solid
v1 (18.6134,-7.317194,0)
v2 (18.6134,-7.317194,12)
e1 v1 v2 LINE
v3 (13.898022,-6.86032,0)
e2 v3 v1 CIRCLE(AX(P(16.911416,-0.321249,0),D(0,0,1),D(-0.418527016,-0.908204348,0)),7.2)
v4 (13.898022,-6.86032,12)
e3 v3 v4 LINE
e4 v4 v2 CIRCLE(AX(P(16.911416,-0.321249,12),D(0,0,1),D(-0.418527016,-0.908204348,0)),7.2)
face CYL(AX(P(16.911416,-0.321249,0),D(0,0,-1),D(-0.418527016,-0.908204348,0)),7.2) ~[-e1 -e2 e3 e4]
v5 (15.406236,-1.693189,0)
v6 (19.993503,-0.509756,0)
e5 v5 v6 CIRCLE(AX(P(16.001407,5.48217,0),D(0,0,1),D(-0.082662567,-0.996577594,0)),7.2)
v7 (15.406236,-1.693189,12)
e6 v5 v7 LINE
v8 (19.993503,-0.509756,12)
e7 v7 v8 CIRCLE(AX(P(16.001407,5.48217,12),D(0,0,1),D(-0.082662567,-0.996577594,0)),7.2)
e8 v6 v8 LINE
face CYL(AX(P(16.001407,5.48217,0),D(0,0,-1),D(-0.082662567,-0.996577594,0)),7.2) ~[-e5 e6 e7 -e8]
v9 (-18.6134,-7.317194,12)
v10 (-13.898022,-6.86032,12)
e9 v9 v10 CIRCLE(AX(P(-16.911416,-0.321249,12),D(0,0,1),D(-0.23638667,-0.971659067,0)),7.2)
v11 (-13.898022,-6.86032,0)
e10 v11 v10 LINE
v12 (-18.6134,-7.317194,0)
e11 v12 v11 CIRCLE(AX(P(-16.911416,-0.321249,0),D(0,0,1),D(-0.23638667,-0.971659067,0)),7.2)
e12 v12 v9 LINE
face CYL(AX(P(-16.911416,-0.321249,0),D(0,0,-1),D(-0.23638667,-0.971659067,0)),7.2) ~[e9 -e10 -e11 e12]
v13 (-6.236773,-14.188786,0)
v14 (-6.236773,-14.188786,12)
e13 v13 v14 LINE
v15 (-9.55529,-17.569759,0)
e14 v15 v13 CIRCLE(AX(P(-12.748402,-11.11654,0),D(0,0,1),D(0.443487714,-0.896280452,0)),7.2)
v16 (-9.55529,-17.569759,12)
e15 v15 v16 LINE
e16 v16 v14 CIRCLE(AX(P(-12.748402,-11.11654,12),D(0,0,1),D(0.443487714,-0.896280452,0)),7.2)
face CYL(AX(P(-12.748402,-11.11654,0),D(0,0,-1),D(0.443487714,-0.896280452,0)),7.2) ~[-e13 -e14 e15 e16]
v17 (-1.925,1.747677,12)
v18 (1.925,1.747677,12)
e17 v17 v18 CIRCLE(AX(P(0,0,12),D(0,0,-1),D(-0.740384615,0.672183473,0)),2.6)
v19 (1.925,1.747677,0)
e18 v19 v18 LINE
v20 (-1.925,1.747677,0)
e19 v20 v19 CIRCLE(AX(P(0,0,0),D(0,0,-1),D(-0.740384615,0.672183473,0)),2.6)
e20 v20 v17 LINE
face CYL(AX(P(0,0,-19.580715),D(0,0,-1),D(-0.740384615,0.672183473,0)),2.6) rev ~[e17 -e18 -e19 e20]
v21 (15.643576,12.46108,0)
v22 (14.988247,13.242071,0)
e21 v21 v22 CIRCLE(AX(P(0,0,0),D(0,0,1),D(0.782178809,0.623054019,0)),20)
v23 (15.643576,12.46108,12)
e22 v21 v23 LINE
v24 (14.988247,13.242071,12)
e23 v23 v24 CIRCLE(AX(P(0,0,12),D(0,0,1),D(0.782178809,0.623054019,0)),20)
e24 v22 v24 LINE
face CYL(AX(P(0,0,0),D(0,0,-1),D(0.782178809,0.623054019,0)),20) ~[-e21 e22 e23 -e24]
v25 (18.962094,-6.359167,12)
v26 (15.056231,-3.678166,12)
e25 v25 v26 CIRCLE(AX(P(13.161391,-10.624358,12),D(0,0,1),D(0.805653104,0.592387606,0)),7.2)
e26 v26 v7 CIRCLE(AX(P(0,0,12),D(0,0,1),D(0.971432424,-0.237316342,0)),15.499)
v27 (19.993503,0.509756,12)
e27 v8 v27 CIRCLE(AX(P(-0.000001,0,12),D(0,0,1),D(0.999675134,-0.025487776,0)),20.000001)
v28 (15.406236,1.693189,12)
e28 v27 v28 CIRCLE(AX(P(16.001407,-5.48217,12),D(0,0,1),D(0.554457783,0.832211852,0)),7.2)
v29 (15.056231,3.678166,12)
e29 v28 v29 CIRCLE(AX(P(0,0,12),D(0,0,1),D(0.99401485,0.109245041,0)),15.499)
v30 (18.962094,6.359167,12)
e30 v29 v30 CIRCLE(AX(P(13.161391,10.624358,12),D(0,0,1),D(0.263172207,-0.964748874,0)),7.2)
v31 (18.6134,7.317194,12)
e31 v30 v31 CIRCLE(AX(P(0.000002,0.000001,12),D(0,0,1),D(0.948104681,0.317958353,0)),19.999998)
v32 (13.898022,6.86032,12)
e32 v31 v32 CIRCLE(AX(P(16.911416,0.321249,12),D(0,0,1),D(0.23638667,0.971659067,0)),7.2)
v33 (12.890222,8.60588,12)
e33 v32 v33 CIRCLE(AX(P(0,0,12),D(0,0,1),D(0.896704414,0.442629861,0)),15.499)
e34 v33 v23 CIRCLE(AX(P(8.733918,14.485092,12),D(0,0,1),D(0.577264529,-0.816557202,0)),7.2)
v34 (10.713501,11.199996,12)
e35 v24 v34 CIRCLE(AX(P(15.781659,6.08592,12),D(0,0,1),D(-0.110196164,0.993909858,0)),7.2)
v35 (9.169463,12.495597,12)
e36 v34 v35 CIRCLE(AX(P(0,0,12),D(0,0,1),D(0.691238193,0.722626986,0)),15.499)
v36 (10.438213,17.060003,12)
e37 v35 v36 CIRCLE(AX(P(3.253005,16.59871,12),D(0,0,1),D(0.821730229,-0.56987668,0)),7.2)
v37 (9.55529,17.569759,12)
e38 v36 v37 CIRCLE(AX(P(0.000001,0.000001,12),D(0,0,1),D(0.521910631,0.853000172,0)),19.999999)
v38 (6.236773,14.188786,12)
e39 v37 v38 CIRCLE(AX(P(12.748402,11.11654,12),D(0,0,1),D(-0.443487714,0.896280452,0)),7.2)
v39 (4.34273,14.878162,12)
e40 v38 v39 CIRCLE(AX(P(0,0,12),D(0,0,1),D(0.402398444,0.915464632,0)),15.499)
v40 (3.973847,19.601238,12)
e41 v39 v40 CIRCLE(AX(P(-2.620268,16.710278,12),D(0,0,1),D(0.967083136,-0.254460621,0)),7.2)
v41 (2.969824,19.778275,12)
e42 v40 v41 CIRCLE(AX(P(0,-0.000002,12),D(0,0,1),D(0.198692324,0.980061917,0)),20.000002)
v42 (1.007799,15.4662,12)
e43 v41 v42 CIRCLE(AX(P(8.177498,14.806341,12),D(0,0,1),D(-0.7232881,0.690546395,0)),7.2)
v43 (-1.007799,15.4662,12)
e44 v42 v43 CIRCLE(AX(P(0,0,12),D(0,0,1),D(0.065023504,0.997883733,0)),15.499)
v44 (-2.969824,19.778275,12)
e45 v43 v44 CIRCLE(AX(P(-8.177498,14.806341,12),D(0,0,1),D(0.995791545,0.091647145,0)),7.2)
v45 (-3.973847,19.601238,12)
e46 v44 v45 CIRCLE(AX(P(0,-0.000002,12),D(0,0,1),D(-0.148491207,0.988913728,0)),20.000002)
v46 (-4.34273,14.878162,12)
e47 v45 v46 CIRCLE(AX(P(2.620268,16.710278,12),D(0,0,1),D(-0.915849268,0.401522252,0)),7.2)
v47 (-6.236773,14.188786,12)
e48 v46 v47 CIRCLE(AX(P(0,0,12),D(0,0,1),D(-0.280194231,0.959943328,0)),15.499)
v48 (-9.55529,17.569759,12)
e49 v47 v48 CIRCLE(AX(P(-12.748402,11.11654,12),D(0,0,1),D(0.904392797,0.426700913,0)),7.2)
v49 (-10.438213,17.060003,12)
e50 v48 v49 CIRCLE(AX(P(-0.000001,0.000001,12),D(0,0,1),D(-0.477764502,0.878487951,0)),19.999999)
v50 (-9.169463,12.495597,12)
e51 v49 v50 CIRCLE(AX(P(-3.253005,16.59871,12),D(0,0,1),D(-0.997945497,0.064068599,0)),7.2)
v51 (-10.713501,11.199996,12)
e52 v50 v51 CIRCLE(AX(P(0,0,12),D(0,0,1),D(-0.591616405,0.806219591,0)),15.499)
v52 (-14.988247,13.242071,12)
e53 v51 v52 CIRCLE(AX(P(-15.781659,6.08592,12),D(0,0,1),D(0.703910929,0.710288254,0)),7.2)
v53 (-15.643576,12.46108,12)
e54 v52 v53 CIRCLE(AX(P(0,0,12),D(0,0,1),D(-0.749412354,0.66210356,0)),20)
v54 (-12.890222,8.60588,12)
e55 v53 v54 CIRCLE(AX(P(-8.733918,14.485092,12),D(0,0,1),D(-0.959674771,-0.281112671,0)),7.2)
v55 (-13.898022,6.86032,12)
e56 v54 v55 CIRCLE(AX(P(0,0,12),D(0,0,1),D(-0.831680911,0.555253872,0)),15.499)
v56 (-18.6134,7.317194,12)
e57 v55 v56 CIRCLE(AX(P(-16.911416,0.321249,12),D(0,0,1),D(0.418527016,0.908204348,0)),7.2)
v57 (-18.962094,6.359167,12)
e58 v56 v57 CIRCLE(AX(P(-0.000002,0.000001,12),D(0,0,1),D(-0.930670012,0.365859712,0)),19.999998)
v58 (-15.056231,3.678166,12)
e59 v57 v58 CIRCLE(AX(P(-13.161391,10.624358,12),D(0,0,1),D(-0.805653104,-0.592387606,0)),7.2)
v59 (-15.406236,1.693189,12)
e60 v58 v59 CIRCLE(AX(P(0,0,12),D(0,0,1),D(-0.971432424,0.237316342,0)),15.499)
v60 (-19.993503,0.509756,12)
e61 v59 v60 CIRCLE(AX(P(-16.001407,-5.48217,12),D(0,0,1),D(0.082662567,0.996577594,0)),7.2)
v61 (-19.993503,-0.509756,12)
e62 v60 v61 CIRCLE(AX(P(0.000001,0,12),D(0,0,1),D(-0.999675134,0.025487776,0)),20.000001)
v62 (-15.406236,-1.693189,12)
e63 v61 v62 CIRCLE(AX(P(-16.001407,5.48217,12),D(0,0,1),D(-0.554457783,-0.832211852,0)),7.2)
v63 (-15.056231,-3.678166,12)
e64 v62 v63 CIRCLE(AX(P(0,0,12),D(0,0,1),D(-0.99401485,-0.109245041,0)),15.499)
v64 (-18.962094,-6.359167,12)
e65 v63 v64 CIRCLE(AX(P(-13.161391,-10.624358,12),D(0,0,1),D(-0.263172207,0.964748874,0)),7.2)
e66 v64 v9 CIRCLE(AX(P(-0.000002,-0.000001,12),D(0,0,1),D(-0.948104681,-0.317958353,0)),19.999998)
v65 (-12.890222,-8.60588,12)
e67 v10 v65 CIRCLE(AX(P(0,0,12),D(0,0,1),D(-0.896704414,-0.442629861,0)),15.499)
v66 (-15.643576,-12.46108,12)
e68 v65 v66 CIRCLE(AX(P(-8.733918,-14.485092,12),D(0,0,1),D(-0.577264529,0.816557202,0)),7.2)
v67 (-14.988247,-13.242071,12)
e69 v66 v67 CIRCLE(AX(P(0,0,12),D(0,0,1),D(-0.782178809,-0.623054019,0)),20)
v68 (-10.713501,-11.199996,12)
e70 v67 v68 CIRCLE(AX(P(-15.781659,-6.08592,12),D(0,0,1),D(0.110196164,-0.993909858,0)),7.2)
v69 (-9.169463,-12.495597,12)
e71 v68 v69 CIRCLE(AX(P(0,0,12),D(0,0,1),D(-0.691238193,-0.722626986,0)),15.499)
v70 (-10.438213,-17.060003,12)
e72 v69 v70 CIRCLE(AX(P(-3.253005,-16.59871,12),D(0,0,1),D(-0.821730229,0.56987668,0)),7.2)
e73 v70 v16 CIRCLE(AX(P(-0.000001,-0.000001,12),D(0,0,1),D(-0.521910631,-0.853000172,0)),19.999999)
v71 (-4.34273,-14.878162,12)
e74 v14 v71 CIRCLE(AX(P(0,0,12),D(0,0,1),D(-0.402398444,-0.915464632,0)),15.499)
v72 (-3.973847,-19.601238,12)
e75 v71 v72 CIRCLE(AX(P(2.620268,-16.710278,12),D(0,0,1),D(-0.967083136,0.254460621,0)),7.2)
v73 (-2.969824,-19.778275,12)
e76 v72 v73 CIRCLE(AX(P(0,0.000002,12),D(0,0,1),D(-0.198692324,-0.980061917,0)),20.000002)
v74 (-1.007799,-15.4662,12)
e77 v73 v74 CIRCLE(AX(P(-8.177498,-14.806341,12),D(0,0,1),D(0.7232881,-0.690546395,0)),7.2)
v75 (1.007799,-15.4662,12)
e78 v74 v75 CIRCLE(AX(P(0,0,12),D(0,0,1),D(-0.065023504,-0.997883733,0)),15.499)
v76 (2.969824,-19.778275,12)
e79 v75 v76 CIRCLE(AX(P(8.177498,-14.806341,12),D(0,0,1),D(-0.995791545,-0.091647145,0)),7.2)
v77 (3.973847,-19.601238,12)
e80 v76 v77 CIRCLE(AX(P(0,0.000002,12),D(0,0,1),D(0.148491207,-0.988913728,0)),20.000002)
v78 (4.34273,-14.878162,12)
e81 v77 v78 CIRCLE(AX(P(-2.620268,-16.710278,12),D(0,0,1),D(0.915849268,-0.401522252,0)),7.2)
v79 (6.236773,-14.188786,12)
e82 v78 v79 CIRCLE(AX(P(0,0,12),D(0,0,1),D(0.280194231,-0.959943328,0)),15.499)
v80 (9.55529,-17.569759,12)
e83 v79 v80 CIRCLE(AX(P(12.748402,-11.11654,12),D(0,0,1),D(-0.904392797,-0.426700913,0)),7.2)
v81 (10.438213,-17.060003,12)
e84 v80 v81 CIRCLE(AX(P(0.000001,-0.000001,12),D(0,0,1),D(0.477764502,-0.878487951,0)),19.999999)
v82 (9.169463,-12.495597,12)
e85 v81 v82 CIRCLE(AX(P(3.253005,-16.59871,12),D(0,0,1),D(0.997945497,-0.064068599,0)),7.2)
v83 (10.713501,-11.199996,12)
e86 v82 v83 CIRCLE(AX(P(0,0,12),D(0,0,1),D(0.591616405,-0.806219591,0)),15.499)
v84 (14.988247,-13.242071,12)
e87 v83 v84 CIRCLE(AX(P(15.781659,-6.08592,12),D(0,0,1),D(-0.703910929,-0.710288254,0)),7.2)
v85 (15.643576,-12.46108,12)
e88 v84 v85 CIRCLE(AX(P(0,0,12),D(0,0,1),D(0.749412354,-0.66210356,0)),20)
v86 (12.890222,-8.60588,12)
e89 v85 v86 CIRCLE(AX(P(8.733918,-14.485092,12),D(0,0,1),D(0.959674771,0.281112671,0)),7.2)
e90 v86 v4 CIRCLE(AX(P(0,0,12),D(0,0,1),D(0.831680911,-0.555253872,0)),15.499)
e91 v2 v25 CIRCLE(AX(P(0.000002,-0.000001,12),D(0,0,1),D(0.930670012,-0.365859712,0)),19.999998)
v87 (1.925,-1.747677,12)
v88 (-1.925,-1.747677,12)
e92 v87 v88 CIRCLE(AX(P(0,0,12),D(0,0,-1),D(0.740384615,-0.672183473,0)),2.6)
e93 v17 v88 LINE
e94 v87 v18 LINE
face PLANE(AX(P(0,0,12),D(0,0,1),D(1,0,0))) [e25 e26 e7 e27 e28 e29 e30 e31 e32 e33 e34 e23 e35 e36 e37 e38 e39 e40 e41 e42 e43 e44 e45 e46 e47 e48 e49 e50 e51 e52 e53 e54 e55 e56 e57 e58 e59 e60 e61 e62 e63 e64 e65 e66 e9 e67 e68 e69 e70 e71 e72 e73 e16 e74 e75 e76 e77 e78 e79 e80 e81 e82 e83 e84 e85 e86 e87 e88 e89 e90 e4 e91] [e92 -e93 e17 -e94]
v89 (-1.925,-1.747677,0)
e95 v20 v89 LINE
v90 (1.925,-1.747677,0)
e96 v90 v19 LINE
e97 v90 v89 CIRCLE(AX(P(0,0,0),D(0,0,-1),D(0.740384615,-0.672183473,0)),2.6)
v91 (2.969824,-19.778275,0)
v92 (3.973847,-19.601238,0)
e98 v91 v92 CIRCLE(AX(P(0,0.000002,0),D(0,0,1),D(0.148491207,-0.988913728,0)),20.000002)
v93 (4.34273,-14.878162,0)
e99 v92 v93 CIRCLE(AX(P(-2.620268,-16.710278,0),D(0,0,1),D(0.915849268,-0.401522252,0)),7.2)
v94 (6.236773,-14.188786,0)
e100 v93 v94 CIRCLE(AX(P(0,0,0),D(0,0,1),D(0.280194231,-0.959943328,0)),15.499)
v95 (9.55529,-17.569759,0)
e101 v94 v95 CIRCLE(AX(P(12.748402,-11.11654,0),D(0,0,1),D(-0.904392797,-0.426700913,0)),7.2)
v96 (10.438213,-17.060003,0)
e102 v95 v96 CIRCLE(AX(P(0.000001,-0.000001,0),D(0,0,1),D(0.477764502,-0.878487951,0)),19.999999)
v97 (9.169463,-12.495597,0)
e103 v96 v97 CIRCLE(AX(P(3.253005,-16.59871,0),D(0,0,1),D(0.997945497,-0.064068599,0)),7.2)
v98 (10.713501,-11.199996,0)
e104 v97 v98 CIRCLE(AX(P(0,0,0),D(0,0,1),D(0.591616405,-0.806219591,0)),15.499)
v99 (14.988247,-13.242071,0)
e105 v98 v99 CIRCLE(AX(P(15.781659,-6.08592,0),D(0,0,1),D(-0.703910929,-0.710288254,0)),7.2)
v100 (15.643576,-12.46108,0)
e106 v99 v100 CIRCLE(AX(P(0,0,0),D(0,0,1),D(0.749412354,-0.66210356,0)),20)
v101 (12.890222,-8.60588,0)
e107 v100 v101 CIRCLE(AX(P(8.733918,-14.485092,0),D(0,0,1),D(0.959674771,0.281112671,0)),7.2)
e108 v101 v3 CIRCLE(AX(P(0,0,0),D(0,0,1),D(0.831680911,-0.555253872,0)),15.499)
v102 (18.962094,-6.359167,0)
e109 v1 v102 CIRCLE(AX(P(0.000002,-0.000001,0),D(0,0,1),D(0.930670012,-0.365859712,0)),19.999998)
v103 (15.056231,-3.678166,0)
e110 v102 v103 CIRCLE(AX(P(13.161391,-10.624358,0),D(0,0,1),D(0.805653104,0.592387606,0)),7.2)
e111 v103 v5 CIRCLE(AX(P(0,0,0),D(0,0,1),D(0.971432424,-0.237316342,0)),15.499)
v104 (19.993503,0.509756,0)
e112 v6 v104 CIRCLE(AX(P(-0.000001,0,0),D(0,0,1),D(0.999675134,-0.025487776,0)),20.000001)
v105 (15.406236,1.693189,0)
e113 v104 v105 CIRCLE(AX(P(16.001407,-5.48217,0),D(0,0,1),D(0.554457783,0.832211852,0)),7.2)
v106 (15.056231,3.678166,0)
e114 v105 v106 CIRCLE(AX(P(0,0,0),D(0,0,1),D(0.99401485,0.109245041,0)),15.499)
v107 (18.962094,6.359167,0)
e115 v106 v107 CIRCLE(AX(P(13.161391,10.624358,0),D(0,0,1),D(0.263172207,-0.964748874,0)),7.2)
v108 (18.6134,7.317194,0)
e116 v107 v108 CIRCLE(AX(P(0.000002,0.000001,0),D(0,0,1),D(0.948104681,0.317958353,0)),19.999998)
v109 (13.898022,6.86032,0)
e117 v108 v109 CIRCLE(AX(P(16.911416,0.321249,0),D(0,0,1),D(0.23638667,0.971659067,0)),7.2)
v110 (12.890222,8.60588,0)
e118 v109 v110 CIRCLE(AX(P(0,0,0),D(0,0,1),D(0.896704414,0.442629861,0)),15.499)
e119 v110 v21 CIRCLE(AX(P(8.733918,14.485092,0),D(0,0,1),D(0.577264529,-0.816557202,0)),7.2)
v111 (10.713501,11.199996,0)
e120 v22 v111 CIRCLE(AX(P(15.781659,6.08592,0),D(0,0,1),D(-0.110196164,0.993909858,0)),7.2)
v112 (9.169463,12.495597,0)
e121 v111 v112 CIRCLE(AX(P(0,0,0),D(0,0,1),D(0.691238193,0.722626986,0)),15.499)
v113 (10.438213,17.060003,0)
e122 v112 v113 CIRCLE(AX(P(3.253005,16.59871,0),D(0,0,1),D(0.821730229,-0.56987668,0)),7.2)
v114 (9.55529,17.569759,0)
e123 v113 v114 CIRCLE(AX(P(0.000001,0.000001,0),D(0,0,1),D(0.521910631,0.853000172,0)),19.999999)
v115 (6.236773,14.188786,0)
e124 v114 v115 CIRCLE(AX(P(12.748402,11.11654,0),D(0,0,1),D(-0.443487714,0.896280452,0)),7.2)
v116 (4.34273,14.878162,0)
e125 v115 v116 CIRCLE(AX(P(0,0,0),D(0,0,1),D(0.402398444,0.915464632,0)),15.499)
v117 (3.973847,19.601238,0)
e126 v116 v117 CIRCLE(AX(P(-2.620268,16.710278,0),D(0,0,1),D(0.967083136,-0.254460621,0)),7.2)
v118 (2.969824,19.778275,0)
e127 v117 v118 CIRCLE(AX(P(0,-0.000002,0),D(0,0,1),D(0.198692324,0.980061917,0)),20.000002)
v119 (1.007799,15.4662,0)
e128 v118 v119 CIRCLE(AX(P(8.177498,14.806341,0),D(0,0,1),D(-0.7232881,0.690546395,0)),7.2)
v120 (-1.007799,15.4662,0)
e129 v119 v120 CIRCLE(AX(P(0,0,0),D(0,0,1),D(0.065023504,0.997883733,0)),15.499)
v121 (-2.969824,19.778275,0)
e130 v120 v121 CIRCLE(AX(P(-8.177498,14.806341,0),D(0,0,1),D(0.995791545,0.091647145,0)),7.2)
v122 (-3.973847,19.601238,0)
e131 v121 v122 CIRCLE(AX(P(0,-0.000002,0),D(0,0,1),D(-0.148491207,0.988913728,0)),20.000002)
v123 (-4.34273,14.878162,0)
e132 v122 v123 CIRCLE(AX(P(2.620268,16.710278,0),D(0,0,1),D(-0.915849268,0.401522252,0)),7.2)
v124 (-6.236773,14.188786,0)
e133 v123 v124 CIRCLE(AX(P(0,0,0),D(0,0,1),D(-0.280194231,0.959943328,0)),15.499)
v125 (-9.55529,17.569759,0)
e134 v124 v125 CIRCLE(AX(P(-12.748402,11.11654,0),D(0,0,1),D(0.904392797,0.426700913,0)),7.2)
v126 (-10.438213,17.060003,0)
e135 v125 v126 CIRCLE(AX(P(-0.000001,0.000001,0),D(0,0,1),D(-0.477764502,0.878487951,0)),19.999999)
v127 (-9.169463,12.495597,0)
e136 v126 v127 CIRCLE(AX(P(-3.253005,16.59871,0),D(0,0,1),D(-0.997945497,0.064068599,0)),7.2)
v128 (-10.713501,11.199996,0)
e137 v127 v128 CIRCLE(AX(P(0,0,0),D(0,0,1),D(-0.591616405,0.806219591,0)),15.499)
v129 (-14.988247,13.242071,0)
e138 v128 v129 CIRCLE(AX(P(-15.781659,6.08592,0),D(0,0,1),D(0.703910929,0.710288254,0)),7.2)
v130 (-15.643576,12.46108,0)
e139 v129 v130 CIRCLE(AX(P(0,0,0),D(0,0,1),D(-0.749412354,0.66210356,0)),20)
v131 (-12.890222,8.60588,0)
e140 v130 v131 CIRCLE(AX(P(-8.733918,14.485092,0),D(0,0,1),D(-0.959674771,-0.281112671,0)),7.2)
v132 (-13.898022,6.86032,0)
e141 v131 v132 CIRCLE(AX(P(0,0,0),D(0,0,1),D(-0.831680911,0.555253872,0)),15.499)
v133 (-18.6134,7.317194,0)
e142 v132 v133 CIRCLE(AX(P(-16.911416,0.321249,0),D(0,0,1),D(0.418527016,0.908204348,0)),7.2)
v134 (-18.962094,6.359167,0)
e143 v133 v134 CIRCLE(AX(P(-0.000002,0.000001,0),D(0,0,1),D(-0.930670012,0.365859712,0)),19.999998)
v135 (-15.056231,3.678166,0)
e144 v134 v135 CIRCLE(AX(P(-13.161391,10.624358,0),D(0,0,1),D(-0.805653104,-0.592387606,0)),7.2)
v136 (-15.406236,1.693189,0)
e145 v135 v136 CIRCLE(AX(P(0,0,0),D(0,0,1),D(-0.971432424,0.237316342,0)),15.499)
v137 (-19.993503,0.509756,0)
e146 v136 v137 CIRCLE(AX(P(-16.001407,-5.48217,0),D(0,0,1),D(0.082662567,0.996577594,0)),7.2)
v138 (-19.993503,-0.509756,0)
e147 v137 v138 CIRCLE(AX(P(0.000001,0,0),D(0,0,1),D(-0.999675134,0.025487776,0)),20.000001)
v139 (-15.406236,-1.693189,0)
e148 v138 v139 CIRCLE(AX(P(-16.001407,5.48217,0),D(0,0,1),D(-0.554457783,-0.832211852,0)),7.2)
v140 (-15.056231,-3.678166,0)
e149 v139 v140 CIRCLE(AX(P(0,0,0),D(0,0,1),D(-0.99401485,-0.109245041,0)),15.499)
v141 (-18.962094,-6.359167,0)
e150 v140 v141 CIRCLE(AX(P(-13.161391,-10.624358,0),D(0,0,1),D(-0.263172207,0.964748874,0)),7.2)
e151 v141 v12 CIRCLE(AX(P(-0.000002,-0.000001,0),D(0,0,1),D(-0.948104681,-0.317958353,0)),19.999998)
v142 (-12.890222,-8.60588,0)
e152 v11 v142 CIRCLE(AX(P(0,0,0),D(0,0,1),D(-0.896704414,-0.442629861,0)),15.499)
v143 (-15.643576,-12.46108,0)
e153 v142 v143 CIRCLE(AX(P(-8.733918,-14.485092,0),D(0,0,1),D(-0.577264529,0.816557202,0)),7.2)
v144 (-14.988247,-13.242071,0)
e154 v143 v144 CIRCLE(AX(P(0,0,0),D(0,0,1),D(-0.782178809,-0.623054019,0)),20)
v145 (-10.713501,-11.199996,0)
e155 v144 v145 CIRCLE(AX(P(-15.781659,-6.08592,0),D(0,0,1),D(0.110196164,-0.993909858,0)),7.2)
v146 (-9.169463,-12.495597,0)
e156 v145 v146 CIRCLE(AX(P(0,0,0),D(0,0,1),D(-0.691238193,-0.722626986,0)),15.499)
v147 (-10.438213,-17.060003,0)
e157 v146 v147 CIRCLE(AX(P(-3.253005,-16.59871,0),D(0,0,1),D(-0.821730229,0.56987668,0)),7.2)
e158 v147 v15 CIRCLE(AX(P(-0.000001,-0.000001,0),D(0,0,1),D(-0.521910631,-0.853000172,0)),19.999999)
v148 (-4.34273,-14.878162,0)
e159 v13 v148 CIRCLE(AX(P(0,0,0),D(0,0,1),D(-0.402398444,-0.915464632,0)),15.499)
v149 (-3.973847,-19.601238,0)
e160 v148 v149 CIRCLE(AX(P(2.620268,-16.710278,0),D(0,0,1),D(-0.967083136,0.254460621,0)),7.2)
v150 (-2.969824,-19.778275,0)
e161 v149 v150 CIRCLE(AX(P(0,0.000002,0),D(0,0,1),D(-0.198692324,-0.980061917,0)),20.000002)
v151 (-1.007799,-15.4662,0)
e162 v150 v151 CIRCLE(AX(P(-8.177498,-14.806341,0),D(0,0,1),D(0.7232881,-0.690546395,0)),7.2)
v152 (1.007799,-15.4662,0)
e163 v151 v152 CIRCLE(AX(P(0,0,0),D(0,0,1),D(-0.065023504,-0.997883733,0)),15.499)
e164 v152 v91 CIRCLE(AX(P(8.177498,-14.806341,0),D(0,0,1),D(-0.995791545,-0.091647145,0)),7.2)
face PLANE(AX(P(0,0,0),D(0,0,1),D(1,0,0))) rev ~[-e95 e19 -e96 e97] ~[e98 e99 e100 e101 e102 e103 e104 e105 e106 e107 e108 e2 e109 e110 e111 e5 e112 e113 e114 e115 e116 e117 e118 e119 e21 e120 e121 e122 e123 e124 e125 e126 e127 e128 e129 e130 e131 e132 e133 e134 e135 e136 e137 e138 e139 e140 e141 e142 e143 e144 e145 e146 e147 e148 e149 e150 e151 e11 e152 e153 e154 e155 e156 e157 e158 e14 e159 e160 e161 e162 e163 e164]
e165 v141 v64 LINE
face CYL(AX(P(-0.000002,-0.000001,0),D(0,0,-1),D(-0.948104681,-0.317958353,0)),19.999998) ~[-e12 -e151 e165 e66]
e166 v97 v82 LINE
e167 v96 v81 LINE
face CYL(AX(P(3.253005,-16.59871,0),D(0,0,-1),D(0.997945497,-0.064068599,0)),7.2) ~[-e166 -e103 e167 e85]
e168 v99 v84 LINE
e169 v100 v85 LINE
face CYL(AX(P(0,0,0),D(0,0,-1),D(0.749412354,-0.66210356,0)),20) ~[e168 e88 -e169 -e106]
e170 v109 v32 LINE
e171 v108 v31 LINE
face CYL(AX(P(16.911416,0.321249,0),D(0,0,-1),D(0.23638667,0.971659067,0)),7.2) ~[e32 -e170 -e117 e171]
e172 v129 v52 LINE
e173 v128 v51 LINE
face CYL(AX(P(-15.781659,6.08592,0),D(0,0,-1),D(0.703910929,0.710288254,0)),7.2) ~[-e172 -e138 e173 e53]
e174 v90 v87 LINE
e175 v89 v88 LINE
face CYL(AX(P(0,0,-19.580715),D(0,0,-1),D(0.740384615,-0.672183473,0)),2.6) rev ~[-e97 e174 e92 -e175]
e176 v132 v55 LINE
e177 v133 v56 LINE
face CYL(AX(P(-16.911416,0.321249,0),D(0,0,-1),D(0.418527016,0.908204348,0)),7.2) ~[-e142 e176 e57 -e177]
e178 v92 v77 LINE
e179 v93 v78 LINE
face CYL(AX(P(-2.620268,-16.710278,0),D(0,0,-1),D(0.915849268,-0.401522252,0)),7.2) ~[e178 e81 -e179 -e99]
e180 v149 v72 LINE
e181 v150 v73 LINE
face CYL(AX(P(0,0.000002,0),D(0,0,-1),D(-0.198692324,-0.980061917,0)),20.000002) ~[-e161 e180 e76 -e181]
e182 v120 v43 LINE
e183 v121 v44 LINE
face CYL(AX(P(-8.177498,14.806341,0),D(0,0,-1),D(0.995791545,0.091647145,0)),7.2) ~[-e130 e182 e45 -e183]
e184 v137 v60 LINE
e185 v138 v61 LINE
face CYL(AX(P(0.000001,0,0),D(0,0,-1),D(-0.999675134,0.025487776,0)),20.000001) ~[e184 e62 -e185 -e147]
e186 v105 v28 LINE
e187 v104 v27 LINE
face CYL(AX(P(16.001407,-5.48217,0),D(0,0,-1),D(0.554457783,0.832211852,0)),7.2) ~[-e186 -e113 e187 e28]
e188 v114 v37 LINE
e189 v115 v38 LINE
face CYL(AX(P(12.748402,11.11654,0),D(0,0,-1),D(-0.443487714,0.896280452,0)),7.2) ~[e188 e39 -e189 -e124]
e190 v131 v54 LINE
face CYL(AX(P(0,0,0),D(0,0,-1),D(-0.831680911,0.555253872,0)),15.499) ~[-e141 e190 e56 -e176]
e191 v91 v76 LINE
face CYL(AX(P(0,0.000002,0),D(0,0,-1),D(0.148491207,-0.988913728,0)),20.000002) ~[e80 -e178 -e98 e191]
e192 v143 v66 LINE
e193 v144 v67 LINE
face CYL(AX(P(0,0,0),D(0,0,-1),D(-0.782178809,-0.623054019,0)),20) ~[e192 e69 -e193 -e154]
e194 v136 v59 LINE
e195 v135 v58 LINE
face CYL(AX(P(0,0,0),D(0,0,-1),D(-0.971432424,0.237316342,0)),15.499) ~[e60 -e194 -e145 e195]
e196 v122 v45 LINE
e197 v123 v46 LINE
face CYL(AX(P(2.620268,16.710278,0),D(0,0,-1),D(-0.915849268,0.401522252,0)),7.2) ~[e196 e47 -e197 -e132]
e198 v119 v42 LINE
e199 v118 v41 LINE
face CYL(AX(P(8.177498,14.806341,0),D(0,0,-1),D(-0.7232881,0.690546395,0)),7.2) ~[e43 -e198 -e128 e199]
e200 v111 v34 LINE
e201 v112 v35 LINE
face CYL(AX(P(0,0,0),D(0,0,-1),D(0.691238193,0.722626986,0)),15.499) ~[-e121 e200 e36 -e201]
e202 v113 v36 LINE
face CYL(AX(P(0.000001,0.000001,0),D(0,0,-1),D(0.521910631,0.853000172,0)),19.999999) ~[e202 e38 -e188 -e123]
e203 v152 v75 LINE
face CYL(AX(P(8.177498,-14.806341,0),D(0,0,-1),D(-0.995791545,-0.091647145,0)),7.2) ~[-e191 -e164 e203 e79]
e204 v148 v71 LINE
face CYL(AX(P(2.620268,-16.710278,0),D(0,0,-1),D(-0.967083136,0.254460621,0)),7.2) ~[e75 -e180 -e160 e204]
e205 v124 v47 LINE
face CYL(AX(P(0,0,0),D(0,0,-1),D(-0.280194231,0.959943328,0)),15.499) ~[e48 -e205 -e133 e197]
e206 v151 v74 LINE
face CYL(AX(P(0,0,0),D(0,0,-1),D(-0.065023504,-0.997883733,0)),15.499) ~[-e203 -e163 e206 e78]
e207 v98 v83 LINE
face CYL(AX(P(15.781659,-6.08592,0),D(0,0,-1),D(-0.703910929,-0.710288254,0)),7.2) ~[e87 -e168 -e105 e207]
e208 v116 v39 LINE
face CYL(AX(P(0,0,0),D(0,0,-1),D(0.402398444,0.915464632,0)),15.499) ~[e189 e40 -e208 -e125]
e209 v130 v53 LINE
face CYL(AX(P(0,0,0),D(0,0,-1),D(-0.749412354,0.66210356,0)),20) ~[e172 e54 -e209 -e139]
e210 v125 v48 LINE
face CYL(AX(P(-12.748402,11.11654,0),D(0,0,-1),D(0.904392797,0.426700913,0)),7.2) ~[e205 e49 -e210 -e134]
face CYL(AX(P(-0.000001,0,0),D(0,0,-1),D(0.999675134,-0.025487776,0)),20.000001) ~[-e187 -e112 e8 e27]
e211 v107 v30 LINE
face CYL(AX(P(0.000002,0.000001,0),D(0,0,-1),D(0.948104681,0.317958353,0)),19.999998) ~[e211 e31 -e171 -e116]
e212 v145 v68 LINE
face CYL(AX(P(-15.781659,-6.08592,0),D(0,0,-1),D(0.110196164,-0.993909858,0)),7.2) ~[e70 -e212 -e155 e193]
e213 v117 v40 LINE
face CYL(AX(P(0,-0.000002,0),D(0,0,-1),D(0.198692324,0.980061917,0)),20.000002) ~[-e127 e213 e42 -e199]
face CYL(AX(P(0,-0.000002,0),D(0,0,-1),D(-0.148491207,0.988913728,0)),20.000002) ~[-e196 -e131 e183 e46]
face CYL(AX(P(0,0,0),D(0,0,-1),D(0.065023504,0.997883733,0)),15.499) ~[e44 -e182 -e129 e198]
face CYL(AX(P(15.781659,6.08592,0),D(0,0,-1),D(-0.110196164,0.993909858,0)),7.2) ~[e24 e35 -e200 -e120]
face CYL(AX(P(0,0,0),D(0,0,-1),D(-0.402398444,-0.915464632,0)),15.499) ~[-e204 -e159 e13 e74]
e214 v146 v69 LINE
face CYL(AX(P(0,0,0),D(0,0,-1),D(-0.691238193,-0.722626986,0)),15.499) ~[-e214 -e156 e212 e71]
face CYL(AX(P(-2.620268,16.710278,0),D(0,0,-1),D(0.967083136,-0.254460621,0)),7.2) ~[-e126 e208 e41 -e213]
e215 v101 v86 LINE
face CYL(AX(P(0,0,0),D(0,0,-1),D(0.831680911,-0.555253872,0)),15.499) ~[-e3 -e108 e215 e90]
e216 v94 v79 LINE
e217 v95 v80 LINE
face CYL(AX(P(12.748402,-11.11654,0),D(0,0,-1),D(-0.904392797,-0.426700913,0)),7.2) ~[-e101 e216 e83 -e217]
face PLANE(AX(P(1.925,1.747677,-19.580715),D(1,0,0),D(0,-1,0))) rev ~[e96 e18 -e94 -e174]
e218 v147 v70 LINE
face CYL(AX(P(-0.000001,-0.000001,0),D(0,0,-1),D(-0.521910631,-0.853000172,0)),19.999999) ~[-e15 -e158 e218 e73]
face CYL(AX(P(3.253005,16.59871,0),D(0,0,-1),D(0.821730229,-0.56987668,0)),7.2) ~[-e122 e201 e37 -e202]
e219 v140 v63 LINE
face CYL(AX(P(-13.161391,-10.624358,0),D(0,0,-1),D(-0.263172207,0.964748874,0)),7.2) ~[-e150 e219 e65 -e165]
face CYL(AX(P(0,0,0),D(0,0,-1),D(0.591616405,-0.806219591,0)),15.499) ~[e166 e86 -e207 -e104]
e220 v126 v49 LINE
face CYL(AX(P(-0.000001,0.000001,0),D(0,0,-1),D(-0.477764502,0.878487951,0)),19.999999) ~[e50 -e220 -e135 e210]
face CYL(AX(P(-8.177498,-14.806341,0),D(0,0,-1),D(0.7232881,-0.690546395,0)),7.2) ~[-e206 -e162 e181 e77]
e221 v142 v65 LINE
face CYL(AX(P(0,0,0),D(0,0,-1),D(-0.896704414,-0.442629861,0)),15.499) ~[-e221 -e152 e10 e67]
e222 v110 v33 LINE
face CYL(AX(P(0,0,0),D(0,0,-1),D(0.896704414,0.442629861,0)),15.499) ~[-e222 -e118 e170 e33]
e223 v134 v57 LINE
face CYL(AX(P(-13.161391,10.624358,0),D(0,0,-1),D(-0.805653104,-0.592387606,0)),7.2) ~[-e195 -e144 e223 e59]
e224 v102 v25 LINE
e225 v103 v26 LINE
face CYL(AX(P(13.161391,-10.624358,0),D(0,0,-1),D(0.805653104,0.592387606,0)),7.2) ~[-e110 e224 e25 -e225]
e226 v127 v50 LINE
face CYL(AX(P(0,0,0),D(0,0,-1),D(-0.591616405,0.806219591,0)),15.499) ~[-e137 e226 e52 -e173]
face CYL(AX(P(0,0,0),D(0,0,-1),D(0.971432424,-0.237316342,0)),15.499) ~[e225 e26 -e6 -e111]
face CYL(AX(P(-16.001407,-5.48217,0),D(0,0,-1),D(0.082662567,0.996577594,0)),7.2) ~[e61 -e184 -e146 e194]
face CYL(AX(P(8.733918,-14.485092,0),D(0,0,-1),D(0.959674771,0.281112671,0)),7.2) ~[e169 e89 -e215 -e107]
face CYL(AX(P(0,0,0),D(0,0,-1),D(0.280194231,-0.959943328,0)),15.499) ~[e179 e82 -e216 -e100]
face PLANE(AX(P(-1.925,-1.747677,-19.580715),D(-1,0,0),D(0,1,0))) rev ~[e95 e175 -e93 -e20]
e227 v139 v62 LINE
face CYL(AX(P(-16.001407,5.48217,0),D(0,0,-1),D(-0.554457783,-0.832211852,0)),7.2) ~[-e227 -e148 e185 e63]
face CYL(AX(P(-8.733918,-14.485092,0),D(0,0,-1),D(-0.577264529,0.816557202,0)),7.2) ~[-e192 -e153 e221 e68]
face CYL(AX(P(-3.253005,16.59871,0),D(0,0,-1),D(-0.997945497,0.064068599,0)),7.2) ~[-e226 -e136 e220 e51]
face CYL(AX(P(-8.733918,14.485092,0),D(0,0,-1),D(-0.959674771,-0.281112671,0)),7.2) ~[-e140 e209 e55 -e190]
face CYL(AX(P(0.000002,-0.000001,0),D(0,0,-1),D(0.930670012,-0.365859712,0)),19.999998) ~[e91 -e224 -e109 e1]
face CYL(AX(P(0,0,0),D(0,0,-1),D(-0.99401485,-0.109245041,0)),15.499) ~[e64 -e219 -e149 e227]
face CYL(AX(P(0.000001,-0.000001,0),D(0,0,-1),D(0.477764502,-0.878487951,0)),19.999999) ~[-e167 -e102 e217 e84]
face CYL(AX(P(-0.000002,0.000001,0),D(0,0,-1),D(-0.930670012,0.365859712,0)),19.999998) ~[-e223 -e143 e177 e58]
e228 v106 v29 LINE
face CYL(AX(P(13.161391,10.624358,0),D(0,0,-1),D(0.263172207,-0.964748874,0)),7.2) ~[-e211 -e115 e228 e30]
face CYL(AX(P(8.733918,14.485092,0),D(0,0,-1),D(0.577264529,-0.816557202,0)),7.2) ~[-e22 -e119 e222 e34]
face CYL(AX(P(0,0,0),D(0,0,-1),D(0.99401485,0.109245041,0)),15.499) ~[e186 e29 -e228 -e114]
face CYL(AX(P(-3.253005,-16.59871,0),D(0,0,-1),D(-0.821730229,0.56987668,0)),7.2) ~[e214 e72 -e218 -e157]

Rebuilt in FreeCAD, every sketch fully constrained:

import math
import FreeCAD as App
import Part
import Sketcher

V = App.Vector
Q = App.Units.Quantity

doc = App.newDocument("Part")
params = doc.addObject("Spreadsheet::Sheet", "Params")
for row, (alias, value) in enumerate([
    ("sketch1_radius", "20.000001 mm"),
    ("sketch1_radius2", "7.2 mm"),
    ("pad1_length", "12 mm"),
    ("sketch2_radius", "2.6 mm"),
], start=1):
    params.set(f"A{row}", alias)
    params.set(f"B{row}", "=" + value)
    params.setAlias(f"B{row}", alias)

body = doc.addObject("PartDesign::Body", "Body")

# Sketch on XY plane
sketch1 = doc.addObject("Sketcher::SketchObject", "Sketch")
body.addObject(sketch1)
sketch1.AttachmentSupport = (doc.XY_Plane, [""])
sketch1.MapMode = "FlatFace"
sketch1.addGeometry([
    Part.ArcOfCircle(Part.Circle(V(-8.7, 14.5, 0), V(0, 0, 1), 7.2), math.radians(-164), math.radians(-125)),  # 0
    Part.ArcOfCircle(Part.Circle(V(0, 0, 0), V(0, 0, 1), 15.5), math.radians(146.27), math.radians(153.73)),  # 1
    Part.ArcOfCircle(Part.Circle(V(-16.9, 0.3, 0), V(0, 0, 1), 7.2), math.radians(65), math.radians(104)),  # 2
    Part.ArcOfCircle(Part.Circle(V(0, 0, 0), V(0, 0, 1), 20), math.radians(158.54), math.radians(161.46)),  # 3
    Part.ArcOfCircle(Part.Circle(V(-13.2, 10.6, 0), V(0, 0, 1), 7.2), math.radians(-144), math.radians(-105)),  # 4
    Part.ArcOfCircle(Part.Circle(V(0, 0, 0), V(0, 0, 1), 15.5), math.radians(166.27), math.radians(173.73)),  # 5
    Part.ArcOfCircle(Part.Circle(V(-16, -5.5, 0), V(0, 0, 1), 7.2), math.radians(85), math.radians(124)),  # 6
    Part.ArcOfCircle(Part.Circle(V(0, 0, 0), V(0, 0, 1), 20), math.radians(178.54), math.radians(181.46)),  # 7
    Part.ArcOfCircle(Part.Circle(V(-16, 5.5, 0), V(0, 0, 1), 7.2), math.radians(-124), math.radians(-85)),  # 8
    Part.ArcOfCircle(Part.Circle(V(0, 0, 0), V(0, 0, 1), 15.5), math.radians(-173.73), math.radians(-166.27)),  # 9
    Part.ArcOfCircle(Part.Circle(V(-13.2, -10.6, 0), V(0, 0, 1), 7.2), math.radians(105), math.radians(144)),  # 10
    Part.ArcOfCircle(Part.Circle(V(0, 0, 0), V(0, 0, 1), 20), math.radians(-161.46), math.radians(-158.54)),  # 11
    Part.ArcOfCircle(Part.Circle(V(-16.9, -0.3, 0), V(0, 0, 1), 7.2), math.radians(-104), math.radians(-65)),  # 12
    Part.ArcOfCircle(Part.Circle(V(0, 0, 0), V(0, 0, 1), 15.5), math.radians(-153.73), math.radians(-146.27)),  # 13
    Part.ArcOfCircle(Part.Circle(V(-8.7, -14.5, 0), V(0, 0, 1), 7.2), math.radians(125), math.radians(164)),  # 14
    Part.ArcOfCircle(Part.Circle(V(0, 0, 0), V(0, 0, 1), 20), math.radians(-141.46), math.radians(-138.54)),  # 15
    Part.ArcOfCircle(Part.Circle(V(-15.8, -6.1, 0), V(0, 0, 1), 7.2), math.radians(-84), math.radians(-45)),  # 16
    Part.ArcOfCircle(Part.Circle(V(0, 0, 0), V(0, 0, 1), 15.5), math.radians(-133.73), math.radians(-126.27)),  # 17
    Part.ArcOfCircle(Part.Circle(V(-3.3, -16.6, 0), V(0, 0, 1), 7.2), math.radians(145), math.radians(184)),  # 18
    Part.ArcOfCircle(Part.Circle(V(0, 0, 0), V(0, 0, 1), 20), math.radians(-121.46), math.radians(-118.54)),  # 19
    Part.ArcOfCircle(Part.Circle(V(-12.7, -11.1, 0), V(0, 0, 1), 7.2), math.radians(-64), math.radians(-25)),  # 20
    Part.ArcOfCircle(Part.Circle(V(0, 0, 0), V(0, 0, 1), 15.5), math.radians(-113.73), math.radians(-106.27)),  # 21
    Part.ArcOfCircle(Part.Circle(V(2.6, -16.7, 0), V(0, 0, 1), 7.2), math.radians(165), math.radians(204)),  # 22
    Part.ArcOfCircle(Part.Circle(V(0, 0, 0), V(0, 0, 1), 20), math.radians(-101.46), math.radians(-98.54)),  # 23
    Part.ArcOfCircle(Part.Circle(V(-8.2, -14.8, 0), V(0, 0, 1), 7.2), math.radians(-44), math.radians(-5)),  # 24
    Part.ArcOfCircle(Part.Circle(V(0, 0, 0), V(0, 0, 1), 15.5), math.radians(-93.73), math.radians(-86.27)),  # 25
    Part.ArcOfCircle(Part.Circle(V(8.2, -14.8, 0), V(0, 0, 1), 7.2), math.radians(-175), math.radians(-136)),  # 26
    Part.ArcOfCircle(Part.Circle(V(0, 0, 0), V(0, 0, 1), 20), math.radians(-81.46), math.radians(-78.54)),  # 27
    Part.ArcOfCircle(Part.Circle(V(-2.6, -16.7, 0), V(0, 0, 1), 7.2), math.radians(-24), math.radians(15)),  # 28
    Part.ArcOfCircle(Part.Circle(V(0, 0, 0), V(0, 0, 1), 15.5), math.radians(-73.73), math.radians(-66.27)),  # 29
    Part.ArcOfCircle(Part.Circle(V(12.7, -11.1, 0), V(0, 0, 1), 7.2), math.radians(-155), math.radians(-116)),  # 30
    Part.ArcOfCircle(Part.Circle(V(0, 0, 0), V(0, 0, 1), 20), math.radians(-61.46), math.radians(-58.54)),  # 31
    Part.ArcOfCircle(Part.Circle(V(3.3, -16.6, 0), V(0, 0, 1), 7.2), math.radians(-4), math.radians(35)),  # 32
    Part.ArcOfCircle(Part.Circle(V(0, 0, 0), V(0, 0, 1), 15.5), math.radians(-53.73), math.radians(-46.27)),  # 33
    Part.ArcOfCircle(Part.Circle(V(15.8, -6.1, 0), V(0, 0, 1), 7.2), math.radians(-135), math.radians(-96)),  # 34
    Part.ArcOfCircle(Part.Circle(V(0, 0, 0), V(0, 0, 1), 20), math.radians(-41.46), math.radians(-38.54)),  # 35
    Part.ArcOfCircle(Part.Circle(V(8.7, -14.5, 0), V(0, 0, 1), 7.2), math.radians(16), math.radians(55)),  # 36
    Part.ArcOfCircle(Part.Circle(V(0, 0, 0), V(0, 0, 1), 15.5), math.radians(-33.73), math.radians(-26.27)),  # 37
    Part.ArcOfCircle(Part.Circle(V(16.9, -0.3, 0), V(0, 0, 1), 7.2), math.radians(-115), math.radians(-76)),  # 38
    Part.ArcOfCircle(Part.Circle(V(0, 0, 0), V(0, 0, 1), 20), math.radians(-21.46), math.radians(-18.54)),  # 39
    Part.ArcOfCircle(Part.Circle(V(13.2, -10.6, 0), V(0, 0, 1), 7.2), math.radians(36), math.radians(75)),  # 40
    Part.ArcOfCircle(Part.Circle(V(0, 0, 0), V(0, 0, 1), 15.5), math.radians(-13.73), math.radians(-6.27)),  # 41
    Part.ArcOfCircle(Part.Circle(V(16, 5.5, 0), V(0, 0, 1), 7.2), math.radians(-95), math.radians(-56)),  # 42
    Part.ArcOfCircle(Part.Circle(V(0, 0, 0), V(0, 0, 1), 20), math.radians(-1.46), math.radians(1.46)),  # 43
    Part.ArcOfCircle(Part.Circle(V(16, -5.5, 0), V(0, 0, 1), 7.2), math.radians(56), math.radians(95)),  # 44
    Part.ArcOfCircle(Part.Circle(V(0, 0, 0), V(0, 0, 1), 15.5), math.radians(6.27), math.radians(13.73)),  # 45
    Part.ArcOfCircle(Part.Circle(V(13.2, 10.6, 0), V(0, 0, 1), 7.2), math.radians(-75), math.radians(-36)),  # 46
    Part.ArcOfCircle(Part.Circle(V(0, 0, 0), V(0, 0, 1), 20), math.radians(18.54), math.radians(21.46)),  # 47
    Part.ArcOfCircle(Part.Circle(V(16.9, 0.3, 0), V(0, 0, 1), 7.2), math.radians(76), math.radians(115)),  # 48
    Part.ArcOfCircle(Part.Circle(V(0, 0, 0), V(0, 0, 1), 15.5), math.radians(26.27), math.radians(33.73)),  # 49
    Part.ArcOfCircle(Part.Circle(V(8.7, 14.5, 0), V(0, 0, 1), 7.2), math.radians(-55), math.radians(-16)),  # 50
    Part.ArcOfCircle(Part.Circle(V(0, 0, 0), V(0, 0, 1), 20), math.radians(38.54), math.radians(41.46)),  # 51
    Part.ArcOfCircle(Part.Circle(V(15.8, 6.1, 0), V(0, 0, 1), 7.2), math.radians(96), math.radians(135)),  # 52
    Part.ArcOfCircle(Part.Circle(V(0, 0, 0), V(0, 0, 1), 15.5), math.radians(46.27), math.radians(53.73)),  # 53
    Part.ArcOfCircle(Part.Circle(V(3.3, 16.6, 0), V(0, 0, 1), 7.2), math.radians(-35), math.radians(4)),  # 54
    Part.ArcOfCircle(Part.Circle(V(0, 0, 0), V(0, 0, 1), 20), math.radians(58.54), math.radians(61.46)),  # 55
    Part.ArcOfCircle(Part.Circle(V(12.7, 11.1, 0), V(0, 0, 1), 7.2), math.radians(116), math.radians(155)),  # 56
    Part.ArcOfCircle(Part.Circle(V(0, 0, 0), V(0, 0, 1), 15.5), math.radians(66.27), math.radians(73.73)),  # 57
    Part.ArcOfCircle(Part.Circle(V(-2.6, 16.7, 0), V(0, 0, 1), 7.2), math.radians(-15), math.radians(24)),  # 58
    Part.ArcOfCircle(Part.Circle(V(0, 0, 0), V(0, 0, 1), 20), math.radians(78.54), math.radians(81.46)),  # 59
    Part.ArcOfCircle(Part.Circle(V(8.2, 14.8, 0), V(0, 0, 1), 7.2), math.radians(136), math.radians(175)),  # 60
    Part.ArcOfCircle(Part.Circle(V(0, 0, 0), V(0, 0, 1), 15.5), math.radians(86.27), math.radians(93.73)),  # 61
    Part.ArcOfCircle(Part.Circle(V(-8.2, 14.8, 0), V(0, 0, 1), 7.2), math.radians(5), math.radians(44)),  # 62
    Part.ArcOfCircle(Part.Circle(V(0, 0, 0), V(0, 0, 1), 20), math.radians(98.54), math.radians(101.46)),  # 63
    Part.ArcOfCircle(Part.Circle(V(2.6, 16.7, 0), V(0, 0, 1), 7.2), math.radians(156), math.radians(195)),  # 64
    Part.ArcOfCircle(Part.Circle(V(0, 0, 0), V(0, 0, 1), 15.5), math.radians(106.27), math.radians(113.73)),  # 65
    Part.ArcOfCircle(Part.Circle(V(-12.7, 11.1, 0), V(0, 0, 1), 7.2), math.radians(25), math.radians(64)),  # 66
    Part.ArcOfCircle(Part.Circle(V(0, 0, 0), V(0, 0, 1), 20), math.radians(118.54), math.radians(121.46)),  # 67
    Part.ArcOfCircle(Part.Circle(V(-3.3, 16.6, 0), V(0, 0, 1), 7.2), math.radians(176), math.radians(215)),  # 68
    Part.ArcOfCircle(Part.Circle(V(0, 0, 0), V(0, 0, 1), 15.5), math.radians(126.27), math.radians(133.73)),  # 69
    Part.ArcOfCircle(Part.Circle(V(-15.8, 6.1, 0), V(0, 0, 1), 7.2), math.radians(45), math.radians(84)),  # 70
    Part.ArcOfCircle(Part.Circle(V(0, 0, 0), V(0, 0, 1), 20), math.radians(138.54), math.radians(141.46)),  # 71
], False)
sketch1.addConstraint([
    Sketcher.Constraint("Coincident", 0, 2, 1, 1),
    Sketcher.Constraint("Coincident", 1, 2, 2, 1),
    Sketcher.Constraint("Coincident", 2, 2, 3, 1),
    Sketcher.Constraint("Coincident", 3, 2, 4, 1),
    Sketcher.Constraint("Coincident", 4, 2, 5, 1),
    Sketcher.Constraint("Coincident", 5, 2, 6, 1),
    Sketcher.Constraint("Coincident", 6, 2, 7, 1),
    Sketcher.Constraint("Coincident", 7, 2, 8, 1),
    Sketcher.Constraint("Coincident", 8, 2, 9, 1),
    Sketcher.Constraint("Coincident", 9, 2, 10, 1),
    Sketcher.Constraint("Coincident", 10, 2, 11, 1),
    Sketcher.Constraint("Coincident", 11, 2, 12, 1),
    Sketcher.Constraint("Coincident", 12, 2, 13, 1),
    Sketcher.Constraint("Coincident", 13, 2, 14, 1),
    Sketcher.Constraint("Coincident", 14, 2, 15, 1),
    Sketcher.Constraint("Coincident", 15, 2, 16, 1),
    Sketcher.Constraint("Coincident", 16, 2, 17, 1),
    Sketcher.Constraint("Coincident", 17, 2, 18, 1),
    Sketcher.Constraint("Coincident", 18, 2, 19, 1),
    Sketcher.Constraint("Coincident", 19, 2, 20, 1),
    Sketcher.Constraint("Coincident", 20, 2, 21, 1),
    Sketcher.Constraint("Coincident", 21, 2, 22, 1),
    Sketcher.Constraint("Coincident", 22, 2, 23, 1),
    Sketcher.Constraint("Coincident", 23, 2, 24, 1),
    Sketcher.Constraint("Coincident", 24, 2, 25, 1),
    Sketcher.Constraint("Coincident", 25, 2, 26, 1),
    Sketcher.Constraint("Coincident", 26, 2, 27, 1),
    Sketcher.Constraint("Coincident", 27, 2, 28, 1),
    Sketcher.Constraint("Coincident", 28, 2, 29, 1),
    Sketcher.Constraint("Coincident", 29, 2, 30, 1),
    Sketcher.Constraint("Coincident", 30, 2, 31, 1),
    Sketcher.Constraint("Coincident", 31, 2, 32, 1),
    Sketcher.Constraint("Coincident", 32, 2, 33, 1),
    Sketcher.Constraint("Coincident", 33, 2, 34, 1),
    Sketcher.Constraint("Coincident", 34, 2, 35, 1),
    Sketcher.Constraint("Coincident", 35, 2, 36, 1),
    Sketcher.Constraint("Coincident", 36, 2, 37, 1),
    Sketcher.Constraint("Coincident", 37, 2, 38, 1),
    Sketcher.Constraint("Coincident", 38, 2, 39, 1),
    Sketcher.Constraint("Coincident", 39, 2, 40, 1),
    Sketcher.Constraint("Coincident", 40, 2, 41, 1),
    Sketcher.Constraint("Coincident", 41, 2, 42, 1),
    Sketcher.Constraint("Coincident", 42, 2, 43, 1),
    Sketcher.Constraint("Coincident", 43, 2, 44, 1),
    Sketcher.Constraint("Coincident", 44, 2, 45, 1),
    Sketcher.Constraint("Coincident", 45, 2, 46, 1),
    Sketcher.Constraint("Coincident", 46, 2, 47, 1),
    Sketcher.Constraint("Coincident", 47, 2, 48, 1),
    Sketcher.Constraint("Coincident", 48, 2, 49, 1),
    Sketcher.Constraint("Coincident", 49, 2, 50, 1),
    Sketcher.Constraint("Coincident", 50, 2, 51, 1),
    Sketcher.Constraint("Coincident", 51, 2, 52, 1),
    Sketcher.Constraint("Coincident", 52, 2, 53, 1),
    Sketcher.Constraint("Coincident", 53, 2, 54, 1),
    Sketcher.Constraint("Coincident", 54, 2, 55, 1),
    Sketcher.Constraint("Coincident", 55, 2, 56, 1),
    Sketcher.Constraint("Coincident", 56, 2, 57, 1),
    Sketcher.Constraint("Coincident", 57, 2, 58, 1),
    Sketcher.Constraint("Coincident", 58, 2, 59, 1),
    Sketcher.Constraint("Coincident", 59, 2, 60, 1),
    Sketcher.Constraint("Coincident", 60, 2, 61, 1),
    Sketcher.Constraint("Coincident", 61, 2, 62, 1),
    Sketcher.Constraint("Coincident", 62, 2, 63, 1),
    Sketcher.Constraint("Coincident", 63, 2, 64, 1),
    Sketcher.Constraint("Coincident", 64, 2, 65, 1),
    Sketcher.Constraint("Coincident", 65, 2, 66, 1),
    Sketcher.Constraint("Coincident", 66, 2, 67, 1),
    Sketcher.Constraint("Coincident", 67, 2, 68, 1),
    Sketcher.Constraint("Coincident", 68, 2, 69, 1),
    Sketcher.Constraint("Coincident", 69, 2, 70, 1),
    Sketcher.Constraint("Coincident", 70, 2, 71, 1),
    Sketcher.Constraint("Coincident", 71, 2, 0, 1),
    Sketcher.Constraint("Coincident", 1, 3, -1, 1),
    Sketcher.Constraint("Coincident", 3, 3, -1, 1),
    Sketcher.Constraint("Coincident", 5, 3, -1, 1),
    Sketcher.Constraint("Coincident", 7, 3, -1, 1),
    Sketcher.Constraint("Coincident", 9, 3, -1, 1),
    Sketcher.Constraint("Coincident", 11, 3, -1, 1),
    Sketcher.Constraint("Coincident", 13, 3, -1, 1),
    Sketcher.Constraint("Coincident", 15, 3, -1, 1),
    Sketcher.Constraint("Coincident", 17, 3, -1, 1),
    Sketcher.Constraint("Coincident", 19, 3, -1, 1),
    Sketcher.Constraint("Coincident", 21, 3, -1, 1),
    Sketcher.Constraint("Coincident", 23, 3, -1, 1),
    Sketcher.Constraint("Coincident", 25, 3, -1, 1),
    Sketcher.Constraint("Coincident", 27, 3, -1, 1),
    Sketcher.Constraint("Coincident", 29, 3, -1, 1),
    Sketcher.Constraint("Coincident", 31, 3, -1, 1),
    Sketcher.Constraint("Coincident", 33, 3, -1, 1),
    Sketcher.Constraint("Coincident", 35, 3, -1, 1),
    Sketcher.Constraint("Coincident", 37, 3, -1, 1),
    Sketcher.Constraint("Coincident", 39, 3, -1, 1),
    Sketcher.Constraint("Coincident", 41, 3, -1, 1),
    Sketcher.Constraint("Coincident", 43, 3, -1, 1),
    Sketcher.Constraint("Coincident", 45, 3, -1, 1),
    Sketcher.Constraint("Coincident", 47, 3, -1, 1),
    Sketcher.Constraint("Coincident", 49, 3, -1, 1),
    Sketcher.Constraint("Coincident", 51, 3, -1, 1),
    Sketcher.Constraint("Coincident", 53, 3, -1, 1),
    Sketcher.Constraint("Coincident", 55, 3, -1, 1),
    Sketcher.Constraint("Coincident", 57, 3, -1, 1),
    Sketcher.Constraint("Coincident", 59, 3, -1, 1),
    Sketcher.Constraint("Coincident", 61, 3, -1, 1),
    Sketcher.Constraint("Coincident", 63, 3, -1, 1),
    Sketcher.Constraint("Coincident", 65, 3, -1, 1),
    Sketcher.Constraint("Coincident", 67, 3, -1, 1),
    Sketcher.Constraint("Coincident", 69, 3, -1, 1),
    Sketcher.Constraint("Coincident", 71, 3, -1, 1),
    Sketcher.Constraint("Equal", 0, 2),
    Sketcher.Constraint("Equal", 2, 4),
    Sketcher.Constraint("Equal", 1, 5),
    Sketcher.Constraint("Equal", 4, 6),
    Sketcher.Constraint("Equal", 6, 8),
    Sketcher.Constraint("Equal", 5, 9),
    Sketcher.Constraint("Equal", 8, 10),
    Sketcher.Constraint("Equal", 3, 11),
    Sketcher.Constraint("Equal", 10, 12),
    Sketcher.Constraint("Equal", 9, 13),
    Sketcher.Constraint("Equal", 12, 14),
    Sketcher.Constraint("Equal", 7, 15),
    Sketcher.Constraint("Equal", 14, 16),
    Sketcher.Constraint("Equal", 13, 17),
    Sketcher.Constraint("Equal", 16, 18),
    Sketcher.Constraint("Equal", 15, 19),
    Sketcher.Constraint("Equal", 18, 20),
    Sketcher.Constraint("Equal", 17, 21),
    Sketcher.Constraint("Equal", 20, 22),
    Sketcher.Constraint("Equal", 15, 23),
    Sketcher.Constraint("Equal", 22, 24),
    Sketcher.Constraint("Equal", 21, 25),
    Sketcher.Constraint("Equal", 24, 26),
    Sketcher.Constraint("Equal", 23, 27),
    Sketcher.Constraint("Equal", 26, 28),
    Sketcher.Constraint("Equal", 25, 29),
    Sketcher.Constraint("Equal", 28, 30),
    Sketcher.Constraint("Equal", 19, 31),
    Sketcher.Constraint("Equal", 30, 32),
    Sketcher.Constraint("Equal", 29, 33),
    Sketcher.Constraint("Equal", 32, 34),
    Sketcher.Constraint("Equal", 31, 35),
    Sketcher.Constraint("Equal", 34, 36),
    Sketcher.Constraint("Equal", 33, 37),
    Sketcher.Constraint("Equal", 36, 38),
    Sketcher.Constraint("Equal", 31, 39),
    Sketcher.Constraint("Equal", 38, 40),
    Sketcher.Constraint("Equal", 37, 41),
    Sketcher.Constraint("Equal", 40, 42),
    Sketcher.Constraint("Equal", 35, 43),
    Sketcher.Constraint("Equal", 42, 44),
    Sketcher.Constraint("Equal", 41, 45),
    Sketcher.Constraint("Equal", 44, 46),
    Sketcher.Constraint("Equal", 39, 47),
    Sketcher.Constraint("Equal", 46, 48),
    Sketcher.Constraint("Equal", 45, 49),
    Sketcher.Constraint("Equal", 48, 50),
    Sketcher.Constraint("Equal", 43, 51),
    Sketcher.Constraint("Equal", 50, 52),
    Sketcher.Constraint("Equal", 49, 53),
    Sketcher.Constraint("Equal", 52, 54),
    Sketcher.Constraint("Equal", 51, 55),
    Sketcher.Constraint("Equal", 54, 56),
    Sketcher.Constraint("Equal", 53, 57),
    Sketcher.Constraint("Equal", 56, 58),
    Sketcher.Constraint("Equal", 51, 59),
    Sketcher.Constraint("Equal", 58, 60),
    Sketcher.Constraint("Equal", 57, 61),
    Sketcher.Constraint("Equal", 60, 62),
    Sketcher.Constraint("Equal", 59, 63),
    Sketcher.Constraint("Equal", 62, 64),
    Sketcher.Constraint("Equal", 61, 65),
    Sketcher.Constraint("Equal", 64, 66),
    Sketcher.Constraint("Equal", 55, 67),
    Sketcher.Constraint("Equal", 66, 68),
    Sketcher.Constraint("Equal", 65, 69),
    Sketcher.Constraint("Equal", 68, 70),
    Sketcher.Constraint("Equal", 67, 71),
    Sketcher.Constraint("Symmetric", 0, 3, 36, 3, -1, 1),
    Sketcher.Constraint("Symmetric", 2, 3, 38, 3, -1, 1),
    Sketcher.Constraint("Symmetric", 4, 3, 40, 3, -1, 1),
    Sketcher.Constraint("Symmetric", 6, 3, 42, 3, -1, 1),
    Sketcher.Constraint("Symmetric", 8, 3, 44, 3, -1, 1),
    Sketcher.Constraint("Symmetric", 10, 3, 46, 3, -1, 1),
    Sketcher.Constraint("Symmetric", 12, 3, 48, 3, -1, 1),
    Sketcher.Constraint("Symmetric", 14, 3, 50, 3, -1, 1),
    Sketcher.Constraint("Symmetric", 16, 3, 52, 3, -1, 1),
    Sketcher.Constraint("Symmetric", 18, 3, 54, 3, -1, 1),
    Sketcher.Constraint("Symmetric", 20, 3, 56, 3, -1, 1),
    Sketcher.Constraint("Symmetric", 22, 3, 58, 3, -1, 1),
    Sketcher.Constraint("Symmetric", 24, 3, 60, 3, -1, 1),
    Sketcher.Constraint("Symmetric", 26, 3, 62, 3, -1, 1),
    Sketcher.Constraint("Symmetric", 28, 3, 64, 3, -1, 1),
    Sketcher.Constraint("Symmetric", 30, 3, 66, 3, -1, 1),
    Sketcher.Constraint("Symmetric", 32, 3, 68, 3, -1, 1),
    Sketcher.Constraint("Symmetric", 34, 3, 70, 3, -1, 1),
    Sketcher.Constraint("Symmetric", 24, 3, 26, 3, -2),
    Sketcher.Constraint("Symmetric", 22, 3, 28, 3, -2),
    Sketcher.Constraint("Symmetric", 20, 3, 30, 3, -2),
    Sketcher.Constraint("Symmetric", 18, 3, 32, 3, -2),
    Sketcher.Constraint("Symmetric", 16, 3, 34, 3, -2),
    Sketcher.Constraint("Symmetric", 14, 3, 36, 3, -2),
    Sketcher.Constraint("Symmetric", 12, 3, 38, 3, -2),
    Sketcher.Constraint("Symmetric", 10, 3, 40, 3, -2),
    Sketcher.Constraint("Symmetric", 8, 3, 42, 3, -2),
    Sketcher.Constraint("Horizontal", 11, 2, 38, 2),
    Sketcher.Constraint("Radius", 7, Q("20.000001 mm")),
    Sketcher.Constraint("Radius", 0, Q("7.2 mm")),
    Sketcher.Constraint("Radius", 1, Q("15.499 mm")),
    Sketcher.Constraint("DistanceX", 20, 3, -1, 1, Q("12.748402 mm")),
    Sketcher.Constraint("DistanceX", 24, 3, -1, 1, Q("8.177498 mm")),
    Sketcher.Constraint("DistanceX", 2, 2, -1, 1, Q("18.6134 mm")),
    Sketcher.Constraint("DistanceX", 16, 2, -1, 1, Q("10.713501 mm")),
    Sketcher.Constraint("DistanceX", 24, 2, -1, 1, Q("1.007799 mm")),
    Sketcher.Constraint("DistanceY", -1, 1, 0, 3, Q("14.485092 mm")),
    Sketcher.Constraint("DistanceY", -1, 1, 2, 3, Q("0.321249 mm")),
    Sketcher.Constraint("DistanceX", 4, 3, -1, 1, Q("13.161391 mm")),
    Sketcher.Constraint("DistanceY", 6, 3, -1, 1, Q("5.48217 mm")),
    Sketcher.Constraint("DistanceX", 16, 3, -1, 1, Q("15.781659 mm")),
    Sketcher.Constraint("DistanceY", 18, 3, -1, 1, Q("16.59871 mm")),
    Sketcher.Constraint("DistanceY", 20, 3, -1, 1, Q("11.11654 mm")),
    Sketcher.Constraint("DistanceX", -1, 1, 22, 3, Q("2.620268 mm")),
    Sketcher.Constraint("DistanceY", 22, 3, -1, 1, Q("16.710278 mm")),
    Sketcher.Constraint("DistanceY", -1, 1, 0, 2, Q("8.60588 mm")),
    Sketcher.Constraint("DistanceX", 4, 2, -1, 1, Q("15.056231 mm")),
    Sketcher.Constraint("DistanceY", -1, 1, 5, 2, Q("1.693189 mm")),
    Sketcher.Constraint("DistanceX", 18, 3, -1, 1, Q("3.253005 mm")),
])
sketch1.setExpression("Constraints[204]", "Params.sketch1_radius")
sketch1.setExpression("Constraints[205]", "Params.sketch1_radius2")
pad1 = doc.addObject("PartDesign::Pad", "Pad")
body.addObject(pad1)
pad1.Profile = sketch1
pad1.setExpression("Length", "Params.pad1_length")

# Sketch on XY plane
sketch2 = doc.addObject("Sketcher::SketchObject", "Sketch001")
body.addObject(sketch2)
sketch2.AttachmentSupport = (doc.XY_Plane, [""])
sketch2.MapMode = "FlatFace"
sketch2.AttachmentOffset = App.Placement(V(0, 0, 12), App.Rotation())
sketch2.addGeometry([
    Part.LineSegment(V(-1.9, 1.7, 0), V(-1.9, -1.7, 0)),
    Part.ArcOfCircle(Part.Circle(V(0, 0, 0), V(0, 0, 1), 2.6), math.radians(-138), math.radians(-42)),
    Part.LineSegment(V(1.9, -1.7, 0), V(1.9, 1.7, 0)),
    Part.ArcOfCircle(Part.Circle(V(0, 0, 0), V(0, 0, 1), 2.6), math.radians(42), math.radians(138)),
], False)
sketch2.addConstraint([
    Sketcher.Constraint("Coincident", 0, 2, 1, 1),
    Sketcher.Constraint("Coincident", 1, 2, 2, 1),
    Sketcher.Constraint("Coincident", 2, 2, 3, 1),
    Sketcher.Constraint("Coincident", 3, 2, 0, 1),
    Sketcher.Constraint("Vertical", 0),
    Sketcher.Constraint("Vertical", 2),
    Sketcher.Constraint("Coincident", 1, 3, -1, 1),
    Sketcher.Constraint("Coincident", 3, 3, -1, 1),
    Sketcher.Constraint("Equal", 1, 3),
    Sketcher.Constraint("Horizontal", 0, 2, 1, 2),
    Sketcher.Constraint("Radius", 1, Q("2.6 mm")),
    Sketcher.Constraint("DistanceX", 0, 2, 1, 2, Q("3.85 mm")),
])
sketch2.setExpression("Constraints[10]", "Params.sketch2_radius")
pocket1 = doc.addObject("PartDesign::Pocket", "Pocket")
body.addObject(pocket1)
pocket1.Profile = sketch2
pocket1.Type = "ThroughAll"
pocket1.Midplane = True

doc.recompute()
